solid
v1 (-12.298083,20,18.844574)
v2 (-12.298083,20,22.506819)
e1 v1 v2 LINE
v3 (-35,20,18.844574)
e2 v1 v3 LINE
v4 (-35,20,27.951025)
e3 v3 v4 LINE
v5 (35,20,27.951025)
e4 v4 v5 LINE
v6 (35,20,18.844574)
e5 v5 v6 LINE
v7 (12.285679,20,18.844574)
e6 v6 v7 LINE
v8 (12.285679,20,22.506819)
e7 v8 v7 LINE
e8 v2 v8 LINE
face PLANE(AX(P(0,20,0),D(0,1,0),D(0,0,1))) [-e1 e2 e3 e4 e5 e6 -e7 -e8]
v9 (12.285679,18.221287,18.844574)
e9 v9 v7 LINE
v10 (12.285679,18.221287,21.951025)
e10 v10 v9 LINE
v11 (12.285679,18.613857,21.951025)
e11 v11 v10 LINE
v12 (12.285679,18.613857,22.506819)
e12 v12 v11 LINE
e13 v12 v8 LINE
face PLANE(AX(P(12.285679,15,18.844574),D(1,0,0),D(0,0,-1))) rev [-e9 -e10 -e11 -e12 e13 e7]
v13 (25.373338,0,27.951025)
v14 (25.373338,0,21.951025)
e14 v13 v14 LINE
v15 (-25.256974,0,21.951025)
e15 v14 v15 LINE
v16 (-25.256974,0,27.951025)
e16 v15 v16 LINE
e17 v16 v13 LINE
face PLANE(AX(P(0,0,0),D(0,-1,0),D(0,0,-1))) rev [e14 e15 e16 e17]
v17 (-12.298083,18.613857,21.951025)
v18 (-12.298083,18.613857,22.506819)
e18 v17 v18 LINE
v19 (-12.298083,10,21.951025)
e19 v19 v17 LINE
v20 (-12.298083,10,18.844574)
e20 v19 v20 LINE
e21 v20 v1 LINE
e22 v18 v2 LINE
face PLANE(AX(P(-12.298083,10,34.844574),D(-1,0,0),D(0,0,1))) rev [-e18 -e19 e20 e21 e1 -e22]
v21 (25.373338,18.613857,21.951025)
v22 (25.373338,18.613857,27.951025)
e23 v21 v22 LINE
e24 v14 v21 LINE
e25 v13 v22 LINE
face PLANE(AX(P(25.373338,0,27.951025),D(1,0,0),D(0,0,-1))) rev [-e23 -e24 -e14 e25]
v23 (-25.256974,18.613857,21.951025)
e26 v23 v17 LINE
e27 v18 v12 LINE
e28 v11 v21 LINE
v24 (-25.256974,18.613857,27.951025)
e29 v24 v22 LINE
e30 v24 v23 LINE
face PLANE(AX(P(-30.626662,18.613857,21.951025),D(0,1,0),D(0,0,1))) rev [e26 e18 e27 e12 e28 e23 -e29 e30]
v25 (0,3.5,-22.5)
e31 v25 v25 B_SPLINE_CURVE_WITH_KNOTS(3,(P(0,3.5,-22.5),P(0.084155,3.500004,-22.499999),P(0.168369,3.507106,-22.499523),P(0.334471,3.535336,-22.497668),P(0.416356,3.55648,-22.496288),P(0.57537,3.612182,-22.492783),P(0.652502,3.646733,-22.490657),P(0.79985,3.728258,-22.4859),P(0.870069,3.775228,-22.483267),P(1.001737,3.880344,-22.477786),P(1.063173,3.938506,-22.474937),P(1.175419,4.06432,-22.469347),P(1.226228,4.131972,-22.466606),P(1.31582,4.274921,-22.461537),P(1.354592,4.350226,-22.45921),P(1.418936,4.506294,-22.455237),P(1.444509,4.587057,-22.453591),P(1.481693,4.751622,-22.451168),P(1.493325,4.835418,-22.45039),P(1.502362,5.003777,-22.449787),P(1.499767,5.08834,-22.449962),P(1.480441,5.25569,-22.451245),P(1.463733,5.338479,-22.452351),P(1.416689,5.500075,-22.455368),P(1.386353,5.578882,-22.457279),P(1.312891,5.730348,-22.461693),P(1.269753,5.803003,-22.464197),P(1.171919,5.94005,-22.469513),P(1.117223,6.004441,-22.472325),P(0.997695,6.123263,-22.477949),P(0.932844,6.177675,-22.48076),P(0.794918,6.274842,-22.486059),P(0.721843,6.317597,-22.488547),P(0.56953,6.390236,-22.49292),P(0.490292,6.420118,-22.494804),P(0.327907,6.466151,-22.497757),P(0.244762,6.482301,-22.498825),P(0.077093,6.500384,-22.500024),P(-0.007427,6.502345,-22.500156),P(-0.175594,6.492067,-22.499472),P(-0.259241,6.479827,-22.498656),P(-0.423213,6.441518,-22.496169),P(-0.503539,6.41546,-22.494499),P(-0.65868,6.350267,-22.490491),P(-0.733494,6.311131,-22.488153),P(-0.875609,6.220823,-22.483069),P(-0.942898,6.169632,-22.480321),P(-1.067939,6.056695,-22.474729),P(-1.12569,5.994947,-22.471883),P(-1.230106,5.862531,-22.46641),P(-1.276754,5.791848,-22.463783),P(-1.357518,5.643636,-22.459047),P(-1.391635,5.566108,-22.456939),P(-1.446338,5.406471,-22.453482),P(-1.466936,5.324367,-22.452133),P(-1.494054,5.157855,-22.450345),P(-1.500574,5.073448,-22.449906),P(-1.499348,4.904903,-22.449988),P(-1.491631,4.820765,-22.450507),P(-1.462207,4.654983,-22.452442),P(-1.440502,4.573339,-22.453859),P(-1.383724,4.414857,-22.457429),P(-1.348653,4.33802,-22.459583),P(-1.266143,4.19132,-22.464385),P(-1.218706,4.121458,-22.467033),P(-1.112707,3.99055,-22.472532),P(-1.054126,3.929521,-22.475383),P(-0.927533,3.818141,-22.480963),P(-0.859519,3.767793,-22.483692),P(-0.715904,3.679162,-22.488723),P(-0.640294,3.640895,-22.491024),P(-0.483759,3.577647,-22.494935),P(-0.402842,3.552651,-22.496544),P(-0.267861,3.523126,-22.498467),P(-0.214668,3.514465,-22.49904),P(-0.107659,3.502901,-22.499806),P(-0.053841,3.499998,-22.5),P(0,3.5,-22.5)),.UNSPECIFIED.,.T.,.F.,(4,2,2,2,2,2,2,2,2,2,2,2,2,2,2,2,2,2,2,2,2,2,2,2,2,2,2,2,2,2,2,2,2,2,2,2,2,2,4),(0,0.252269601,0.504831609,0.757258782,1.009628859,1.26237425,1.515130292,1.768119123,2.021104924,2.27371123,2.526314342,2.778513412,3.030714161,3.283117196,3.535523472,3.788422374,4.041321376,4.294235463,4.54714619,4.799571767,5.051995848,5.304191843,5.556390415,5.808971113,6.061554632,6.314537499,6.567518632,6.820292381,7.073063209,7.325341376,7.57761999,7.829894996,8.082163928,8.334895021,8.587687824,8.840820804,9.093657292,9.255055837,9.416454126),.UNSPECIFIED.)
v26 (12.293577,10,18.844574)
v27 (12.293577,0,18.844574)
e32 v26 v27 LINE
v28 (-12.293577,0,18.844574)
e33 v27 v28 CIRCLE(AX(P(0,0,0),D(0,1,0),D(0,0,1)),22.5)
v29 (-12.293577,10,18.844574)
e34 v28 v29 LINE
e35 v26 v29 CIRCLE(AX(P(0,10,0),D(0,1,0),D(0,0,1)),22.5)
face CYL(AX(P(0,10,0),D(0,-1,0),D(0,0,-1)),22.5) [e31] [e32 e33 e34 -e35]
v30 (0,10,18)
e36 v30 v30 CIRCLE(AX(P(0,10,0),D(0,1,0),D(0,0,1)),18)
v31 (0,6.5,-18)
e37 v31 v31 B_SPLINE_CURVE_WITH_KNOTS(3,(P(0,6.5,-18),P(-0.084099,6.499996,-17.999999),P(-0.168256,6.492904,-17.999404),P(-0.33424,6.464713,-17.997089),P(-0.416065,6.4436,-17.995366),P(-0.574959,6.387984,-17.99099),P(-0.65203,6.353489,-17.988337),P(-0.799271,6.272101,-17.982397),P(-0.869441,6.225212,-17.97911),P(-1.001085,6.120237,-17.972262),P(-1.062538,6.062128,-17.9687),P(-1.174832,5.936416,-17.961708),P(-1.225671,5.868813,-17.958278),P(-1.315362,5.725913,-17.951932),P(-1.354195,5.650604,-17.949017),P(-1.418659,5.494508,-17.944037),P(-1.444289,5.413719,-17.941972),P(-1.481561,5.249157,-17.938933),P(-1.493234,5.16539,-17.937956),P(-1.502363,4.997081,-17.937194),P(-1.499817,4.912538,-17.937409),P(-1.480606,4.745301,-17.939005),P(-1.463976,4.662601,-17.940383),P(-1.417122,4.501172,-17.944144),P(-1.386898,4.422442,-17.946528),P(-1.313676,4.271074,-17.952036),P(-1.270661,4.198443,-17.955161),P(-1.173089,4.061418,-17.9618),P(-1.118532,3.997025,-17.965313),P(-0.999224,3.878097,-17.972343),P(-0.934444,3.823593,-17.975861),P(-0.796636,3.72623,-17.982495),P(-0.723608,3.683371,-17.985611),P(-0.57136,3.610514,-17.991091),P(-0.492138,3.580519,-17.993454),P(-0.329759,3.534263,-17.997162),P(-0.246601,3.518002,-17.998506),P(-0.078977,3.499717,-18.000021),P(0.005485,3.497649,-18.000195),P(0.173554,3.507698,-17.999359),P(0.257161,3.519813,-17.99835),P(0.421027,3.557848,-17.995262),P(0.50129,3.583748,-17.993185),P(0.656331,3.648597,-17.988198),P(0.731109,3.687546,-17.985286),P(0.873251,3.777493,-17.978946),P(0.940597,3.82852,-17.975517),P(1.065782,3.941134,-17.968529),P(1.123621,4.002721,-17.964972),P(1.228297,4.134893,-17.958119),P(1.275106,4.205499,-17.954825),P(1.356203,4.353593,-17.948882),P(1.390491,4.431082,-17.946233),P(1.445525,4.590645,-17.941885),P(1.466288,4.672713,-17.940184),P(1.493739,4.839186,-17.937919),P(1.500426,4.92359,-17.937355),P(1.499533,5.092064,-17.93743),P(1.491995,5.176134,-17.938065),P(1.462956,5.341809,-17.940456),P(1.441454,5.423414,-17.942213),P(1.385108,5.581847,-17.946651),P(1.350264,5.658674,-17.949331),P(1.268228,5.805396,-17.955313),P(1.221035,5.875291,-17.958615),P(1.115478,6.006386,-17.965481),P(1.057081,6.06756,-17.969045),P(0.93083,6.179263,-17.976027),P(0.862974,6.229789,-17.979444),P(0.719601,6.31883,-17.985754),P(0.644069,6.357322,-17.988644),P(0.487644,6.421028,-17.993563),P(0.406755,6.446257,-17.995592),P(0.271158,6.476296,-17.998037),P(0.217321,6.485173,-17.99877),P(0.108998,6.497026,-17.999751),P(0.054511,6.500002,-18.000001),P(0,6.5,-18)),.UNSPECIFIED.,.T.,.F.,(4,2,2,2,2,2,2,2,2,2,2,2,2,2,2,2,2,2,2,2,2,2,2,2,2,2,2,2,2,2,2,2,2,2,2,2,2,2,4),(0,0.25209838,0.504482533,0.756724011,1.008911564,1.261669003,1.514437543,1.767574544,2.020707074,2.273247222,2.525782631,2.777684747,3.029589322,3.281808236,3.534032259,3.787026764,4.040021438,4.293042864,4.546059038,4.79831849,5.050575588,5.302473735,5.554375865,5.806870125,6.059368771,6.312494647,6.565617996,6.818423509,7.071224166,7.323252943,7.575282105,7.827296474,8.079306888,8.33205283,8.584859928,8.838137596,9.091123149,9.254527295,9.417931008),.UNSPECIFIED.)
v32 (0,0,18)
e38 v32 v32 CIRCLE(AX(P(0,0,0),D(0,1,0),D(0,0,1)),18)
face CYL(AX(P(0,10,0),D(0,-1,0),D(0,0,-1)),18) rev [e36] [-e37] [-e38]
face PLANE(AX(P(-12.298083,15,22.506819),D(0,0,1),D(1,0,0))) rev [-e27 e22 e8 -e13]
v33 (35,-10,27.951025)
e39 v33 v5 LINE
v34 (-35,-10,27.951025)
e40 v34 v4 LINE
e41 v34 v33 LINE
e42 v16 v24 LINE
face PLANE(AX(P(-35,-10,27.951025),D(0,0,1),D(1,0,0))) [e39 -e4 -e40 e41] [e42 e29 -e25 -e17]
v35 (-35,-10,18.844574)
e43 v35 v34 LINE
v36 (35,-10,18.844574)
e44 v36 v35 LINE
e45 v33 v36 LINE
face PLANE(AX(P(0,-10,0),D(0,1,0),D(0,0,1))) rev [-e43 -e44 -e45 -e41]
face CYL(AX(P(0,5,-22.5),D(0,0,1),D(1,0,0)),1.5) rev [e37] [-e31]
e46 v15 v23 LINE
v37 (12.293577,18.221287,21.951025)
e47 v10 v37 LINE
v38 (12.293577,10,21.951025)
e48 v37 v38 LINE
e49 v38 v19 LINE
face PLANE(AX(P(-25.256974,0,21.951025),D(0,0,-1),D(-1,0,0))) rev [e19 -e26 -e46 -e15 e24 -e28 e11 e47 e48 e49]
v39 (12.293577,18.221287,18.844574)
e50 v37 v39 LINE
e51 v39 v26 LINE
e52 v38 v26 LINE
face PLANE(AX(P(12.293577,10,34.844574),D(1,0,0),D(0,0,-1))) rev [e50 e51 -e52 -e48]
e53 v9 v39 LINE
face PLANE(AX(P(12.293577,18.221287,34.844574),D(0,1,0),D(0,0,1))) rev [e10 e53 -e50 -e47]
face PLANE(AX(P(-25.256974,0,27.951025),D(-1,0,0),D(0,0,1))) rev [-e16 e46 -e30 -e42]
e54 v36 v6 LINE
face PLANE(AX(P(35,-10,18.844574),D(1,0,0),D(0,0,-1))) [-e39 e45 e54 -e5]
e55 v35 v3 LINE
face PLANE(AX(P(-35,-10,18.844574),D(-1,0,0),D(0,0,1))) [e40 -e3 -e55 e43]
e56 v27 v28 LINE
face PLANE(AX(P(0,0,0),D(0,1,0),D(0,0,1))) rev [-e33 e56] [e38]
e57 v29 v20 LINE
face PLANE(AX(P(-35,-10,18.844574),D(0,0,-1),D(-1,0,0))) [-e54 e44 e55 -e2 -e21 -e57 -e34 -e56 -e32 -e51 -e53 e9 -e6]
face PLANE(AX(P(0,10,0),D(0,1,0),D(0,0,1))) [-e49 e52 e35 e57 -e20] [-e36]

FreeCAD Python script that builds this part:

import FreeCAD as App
import Part
import Sketcher

V = App.Vector


def add_polygon(sketch, points):
    """Adds a closed chain of lines whose ends are joined by coincident constraints."""
    first, n = sketch.GeometryCount, len(points)
    for a, b in zip(points, points[1:] + points[:1]):
        sketch.addGeometry(Part.LineSegment(App.Vector(*a, 0), App.Vector(*b, 0)), False)
    for i in range(n):
        sketch.addConstraint(Sketcher.Constraint("Coincident", first + i, 2, first + (i + 1) % n, 1))

doc = App.newDocument("Part")
body = doc.addObject("PartDesign::Body", "Body")

# Sketch on XZ plane
sketch1 = body.newObject("Sketcher::SketchObject", "Sketch")
sketch1.AttachmentSupport = (doc.getObject("XZ_Plane"), [""])
sketch1.MapMode = "FlatFace"
sketch1.addGeometry([
    Part.Circle(V(0, 0, 0), V(0, 0, 1), 22.5),
    Part.Circle(V(0, 0, 0), V(0, 0, 1), 18),
], False)
sketch1.addConstraint([
    Sketcher.Constraint("Coincident", 0, 3, -1, 1),
    Sketcher.Constraint("Coincident", 1, 3, -1, 1),
    Sketcher.Constraint("Diameter", 0, 45.0),
    Sketcher.Constraint("Diameter", 1, 36.0),
])
pad1 = body.newObject("PartDesign::Pad", "Pad")
pad1.Profile = sketch1
pad1.Length = 10
pad1.Reversed = True

# Sketch on XZ plane
sketch2 = body.newObject("Sketcher::SketchObject", "Sketch001")
sketch2.AttachmentSupport = (doc.getObject("XZ_Plane"), [""])
sketch2.MapMode = "FlatFace"
sketch2.AttachmentOffset = App.Placement(V(0, 0, -10), App.Rotation())
add_polygon(sketch2, [(-35, 18.844574), (-35, 27.951025), (35, 27.951025), (35, 18.844574)])  # lines 0-3
sketch2.addConstraint([
    Sketcher.Constraint("Vertical", 0),
    Sketcher.Constraint("Horizontal", 1),
    Sketcher.Constraint("Vertical", 2),
    Sketcher.Constraint("Horizontal", 3),
    Sketcher.Constraint("DistanceX", 1, 1, 1, 2, 70.0),
    Sketcher.Constraint("DistanceX", 0, 2, -1, 1, 35.0),
    Sketcher.Constraint("DistanceY", 0, 1, 0, 2, 9.106451),
    Sketcher.Constraint("DistanceY", -1, 1, 0, 2, 27.951025),
])
pad2 = body.newObject("PartDesign::Pad", "Pad001")
pad2.Profile = sketch2
pad2.Type = "TwoLengths"
pad2.Length = 10
pad2.Length2 = 20
pad2.Reversed = True

# Sketch on XY plane
sketch3 = body.newObject("Sketcher::SketchObject", "Sketch002")
sketch3.AttachmentSupport = (doc.getObject("XY_Plane"), [""])
sketch3.MapMode = "FlatFace"
sketch3.addGeometry(Part.Circle(V(0, 5, 0), V(0, 0, 1), 1.5), False)
sketch3.addConstraint([
    Sketcher.Constraint("PointOnObject", 0, 3, -2),
    Sketcher.Constraint("Diameter", 0, 3.0),
    Sketcher.Constraint("DistanceY", -1, 1, 0, 3, 5.0),
])
pocket1 = body.newObject("PartDesign::Pocket", "Pocket")
pocket1.Profile = sketch3
pocket1.Type = "ThroughAll"

# Sketch on XY plane
sketch4 = body.newObject("Sketcher::SketchObject", "Sketch003")
sketch4.AttachmentSupport = (doc.getObject("XY_Plane"), [""])
sketch4.MapMode = "FlatFace"
sketch4.AttachmentOffset = App.Placement(V(0, 0, 27.951025), App.Rotation())
add_polygon(sketch4, [(-25, 11.353052), (-25, 0.867645), (25, 0.867645), (25, 11.353052)])  # lines 0-3
sketch4.addConstraint([
    Sketcher.Constraint("Vertical", 0),
    Sketcher.Constraint("Horizontal", 1),
    Sketcher.Constraint("Vertical", 2),
    Sketcher.Constraint("Horizontal", 3),
    Sketcher.Constraint("DistanceX", 1, 1, 1, 2, 50.0),
    Sketcher.Constraint("DistanceX", 0, 2, -1, 1, 25.0),
    Sketcher.Constraint("DistanceY", 0, 2, 0, 1, 10.485407),
    Sketcher.Constraint("DistanceY", -1, 1, 0, 2, 0.867645),
])
pocket2 = body.newObject("PartDesign::Pocket", "Pocket001")
pocket2.Profile = sketch4
pocket2.Length = 5

# Sketch on XZ plane
sketch5 = body.newObject("Sketcher::SketchObject", "Sketch004")
sketch5.AttachmentSupport = (doc.getObject("XZ_Plane"), [""])
sketch5.MapMode = "FlatFace"
sketch5.AttachmentOffset = App.Placement(V(0, 0, -20), App.Rotation())
add_polygon(sketch5, [(-25.256974, 21.951025), (-25.256974, 27.951025), (25.373338, 27.951025), (25.373338, 21.951025)])  # lines 0-3
sketch5.addConstraint([
    Sketcher.Constraint("Vertical", 0),
    Sketcher.Constraint("Horizontal", 1),
    Sketcher.Constraint("Vertical", 2),
    Sketcher.Constraint("Horizontal", 3),
    Sketcher.Constraint("DistanceY", 0, 1, 0, 2, 6.0),
    Sketcher.Constraint("DistanceX", 1, 1, 1, 2, 50.630312),
    Sketcher.Constraint("DistanceX", -1, 1, 1, 2, 25.373338),
    Sketcher.Constraint("DistanceY", -1, 1, 0, 2, 27.951025),
])
pocket3 = body.newObject("PartDesign::Pocket", "Pocket002")
pocket3.Profile = sketch5
pocket3.Length = 20
pocket3.Reversed = True

# Sketch on XY plane
sketch6 = body.newObject("Sketcher::SketchObject", "Sketch005")
sketch6.AttachmentSupport = (doc.getObject("XY_Plane"), [""])
sketch6.MapMode = "FlatFace"
sketch6.AttachmentOffset = App.Placement(V(0, 0, 18.844574), App.Rotation())
add_polygon(sketch6, [(12.293577, 18.221287), (12.293577, 10), (-12.298083, 10), (-12.298083, 18.221287)])  # lines 0-3
sketch6.addConstraint([
    Sketcher.Constraint("Vertical", 0),
    Sketcher.Constraint("Horizontal", 1),
    Sketcher.Constraint("Vertical", 2),
    Sketcher.Constraint("Horizontal", 3),
    Sketcher.Constraint("DistanceY", -1, 1, 0, 2, 10.0),
    Sketcher.Constraint("DistanceX", 1, 2, 1, 1, 24.591659),
    Sketcher.Constraint("DistanceY", 0, 2, 0, 1, 8.221287),
    Sketcher.Constraint("DistanceX", -1, 1, 0, 2, 12.293577),
])
pocket4 = body.newObject("PartDesign::Pocket", "Pocket003")
pocket4.Profile = sketch6
pocket4.Length = 16
pocket4.Reversed = True

# Sketch on YZ plane
sketch7 = body.newObject("Sketcher::SketchObject", "Sketch006")
sketch7.AttachmentSupport = (doc.getObject("YZ_Plane"), [""])
sketch7.MapMode = "FlatFace"
sketch7.AttachmentOffset = App.Placement(V(0, 0, 25.373338), App.Rotation())
add_polygon(sketch7, [(20, 21.951025), (18.613857, 21.951025), (18.613857, 27.951025), (20, 27.951025)])  # lines 0-3
sketch7.addConstraint([
    Sketcher.Constraint("Horizontal", 0),
    Sketcher.Constraint("Vertical", 1),
    Sketcher.Constraint("Horizontal", 2),
    Sketcher.Constraint("Vertical", 3),
    Sketcher.Constraint("DistanceY", 1, 1, 1, 2, 6.0),
    Sketcher.Constraint("DistanceX", -1, 1, 2, 2, 20.0),
    Sketcher.Constraint("DistanceX", 0, 2, 0, 1, 1.386143),
    Sketcher.Constraint("DistanceY", -1, 1, 0, 2, 21.951025),
])
pad3 = body.newObject("PartDesign::Pad", "Pad002")
pad3.Profile = sketch7
pad3.Length = 56
pad3.Reversed = True

# Sketch on XZ plane
sketch8 = body.newObject("Sketcher::SketchObject", "Sketch007")
sketch8.AttachmentSupport = (doc.getObject("XZ_Plane"), [""])
sketch8.MapMode = "FlatFace"
sketch8.AttachmentOffset = App.Placement(V(0, 0, -20), App.Rotation())
add_polygon(sketch8, [(-12.298083, 18.844574), (-12.298083, 22.506819), (12.285679, 22.506819), (12.285679, 18.844574)])  # lines 0-3
sketch8.addConstraint([
    Sketcher.Constraint("Vertical", 0),
    Sketcher.Constraint("Horizontal", 1),
    Sketcher.Constraint("Vertical", 2),
    Sketcher.Constraint("Horizontal", 3),
    Sketcher.Constraint("DistanceX", 1, 1, 1, 2, 24.583762),
    Sketcher.Constraint("DistanceY", 0, 1, 0, 2, 3.662245),
    Sketcher.Constraint("DistanceY", -1, 1, 0, 2, 22.506819),
    Sketcher.Constraint("DistanceX", -1, 1, 1, 2, 12.285679),
])
pocket5 = body.newObject("PartDesign::Pocket", "Pocket004")
pocket5.Profile = sketch8
pocket5.Length = 5
pocket5.Reversed = True

doc.recompute()
